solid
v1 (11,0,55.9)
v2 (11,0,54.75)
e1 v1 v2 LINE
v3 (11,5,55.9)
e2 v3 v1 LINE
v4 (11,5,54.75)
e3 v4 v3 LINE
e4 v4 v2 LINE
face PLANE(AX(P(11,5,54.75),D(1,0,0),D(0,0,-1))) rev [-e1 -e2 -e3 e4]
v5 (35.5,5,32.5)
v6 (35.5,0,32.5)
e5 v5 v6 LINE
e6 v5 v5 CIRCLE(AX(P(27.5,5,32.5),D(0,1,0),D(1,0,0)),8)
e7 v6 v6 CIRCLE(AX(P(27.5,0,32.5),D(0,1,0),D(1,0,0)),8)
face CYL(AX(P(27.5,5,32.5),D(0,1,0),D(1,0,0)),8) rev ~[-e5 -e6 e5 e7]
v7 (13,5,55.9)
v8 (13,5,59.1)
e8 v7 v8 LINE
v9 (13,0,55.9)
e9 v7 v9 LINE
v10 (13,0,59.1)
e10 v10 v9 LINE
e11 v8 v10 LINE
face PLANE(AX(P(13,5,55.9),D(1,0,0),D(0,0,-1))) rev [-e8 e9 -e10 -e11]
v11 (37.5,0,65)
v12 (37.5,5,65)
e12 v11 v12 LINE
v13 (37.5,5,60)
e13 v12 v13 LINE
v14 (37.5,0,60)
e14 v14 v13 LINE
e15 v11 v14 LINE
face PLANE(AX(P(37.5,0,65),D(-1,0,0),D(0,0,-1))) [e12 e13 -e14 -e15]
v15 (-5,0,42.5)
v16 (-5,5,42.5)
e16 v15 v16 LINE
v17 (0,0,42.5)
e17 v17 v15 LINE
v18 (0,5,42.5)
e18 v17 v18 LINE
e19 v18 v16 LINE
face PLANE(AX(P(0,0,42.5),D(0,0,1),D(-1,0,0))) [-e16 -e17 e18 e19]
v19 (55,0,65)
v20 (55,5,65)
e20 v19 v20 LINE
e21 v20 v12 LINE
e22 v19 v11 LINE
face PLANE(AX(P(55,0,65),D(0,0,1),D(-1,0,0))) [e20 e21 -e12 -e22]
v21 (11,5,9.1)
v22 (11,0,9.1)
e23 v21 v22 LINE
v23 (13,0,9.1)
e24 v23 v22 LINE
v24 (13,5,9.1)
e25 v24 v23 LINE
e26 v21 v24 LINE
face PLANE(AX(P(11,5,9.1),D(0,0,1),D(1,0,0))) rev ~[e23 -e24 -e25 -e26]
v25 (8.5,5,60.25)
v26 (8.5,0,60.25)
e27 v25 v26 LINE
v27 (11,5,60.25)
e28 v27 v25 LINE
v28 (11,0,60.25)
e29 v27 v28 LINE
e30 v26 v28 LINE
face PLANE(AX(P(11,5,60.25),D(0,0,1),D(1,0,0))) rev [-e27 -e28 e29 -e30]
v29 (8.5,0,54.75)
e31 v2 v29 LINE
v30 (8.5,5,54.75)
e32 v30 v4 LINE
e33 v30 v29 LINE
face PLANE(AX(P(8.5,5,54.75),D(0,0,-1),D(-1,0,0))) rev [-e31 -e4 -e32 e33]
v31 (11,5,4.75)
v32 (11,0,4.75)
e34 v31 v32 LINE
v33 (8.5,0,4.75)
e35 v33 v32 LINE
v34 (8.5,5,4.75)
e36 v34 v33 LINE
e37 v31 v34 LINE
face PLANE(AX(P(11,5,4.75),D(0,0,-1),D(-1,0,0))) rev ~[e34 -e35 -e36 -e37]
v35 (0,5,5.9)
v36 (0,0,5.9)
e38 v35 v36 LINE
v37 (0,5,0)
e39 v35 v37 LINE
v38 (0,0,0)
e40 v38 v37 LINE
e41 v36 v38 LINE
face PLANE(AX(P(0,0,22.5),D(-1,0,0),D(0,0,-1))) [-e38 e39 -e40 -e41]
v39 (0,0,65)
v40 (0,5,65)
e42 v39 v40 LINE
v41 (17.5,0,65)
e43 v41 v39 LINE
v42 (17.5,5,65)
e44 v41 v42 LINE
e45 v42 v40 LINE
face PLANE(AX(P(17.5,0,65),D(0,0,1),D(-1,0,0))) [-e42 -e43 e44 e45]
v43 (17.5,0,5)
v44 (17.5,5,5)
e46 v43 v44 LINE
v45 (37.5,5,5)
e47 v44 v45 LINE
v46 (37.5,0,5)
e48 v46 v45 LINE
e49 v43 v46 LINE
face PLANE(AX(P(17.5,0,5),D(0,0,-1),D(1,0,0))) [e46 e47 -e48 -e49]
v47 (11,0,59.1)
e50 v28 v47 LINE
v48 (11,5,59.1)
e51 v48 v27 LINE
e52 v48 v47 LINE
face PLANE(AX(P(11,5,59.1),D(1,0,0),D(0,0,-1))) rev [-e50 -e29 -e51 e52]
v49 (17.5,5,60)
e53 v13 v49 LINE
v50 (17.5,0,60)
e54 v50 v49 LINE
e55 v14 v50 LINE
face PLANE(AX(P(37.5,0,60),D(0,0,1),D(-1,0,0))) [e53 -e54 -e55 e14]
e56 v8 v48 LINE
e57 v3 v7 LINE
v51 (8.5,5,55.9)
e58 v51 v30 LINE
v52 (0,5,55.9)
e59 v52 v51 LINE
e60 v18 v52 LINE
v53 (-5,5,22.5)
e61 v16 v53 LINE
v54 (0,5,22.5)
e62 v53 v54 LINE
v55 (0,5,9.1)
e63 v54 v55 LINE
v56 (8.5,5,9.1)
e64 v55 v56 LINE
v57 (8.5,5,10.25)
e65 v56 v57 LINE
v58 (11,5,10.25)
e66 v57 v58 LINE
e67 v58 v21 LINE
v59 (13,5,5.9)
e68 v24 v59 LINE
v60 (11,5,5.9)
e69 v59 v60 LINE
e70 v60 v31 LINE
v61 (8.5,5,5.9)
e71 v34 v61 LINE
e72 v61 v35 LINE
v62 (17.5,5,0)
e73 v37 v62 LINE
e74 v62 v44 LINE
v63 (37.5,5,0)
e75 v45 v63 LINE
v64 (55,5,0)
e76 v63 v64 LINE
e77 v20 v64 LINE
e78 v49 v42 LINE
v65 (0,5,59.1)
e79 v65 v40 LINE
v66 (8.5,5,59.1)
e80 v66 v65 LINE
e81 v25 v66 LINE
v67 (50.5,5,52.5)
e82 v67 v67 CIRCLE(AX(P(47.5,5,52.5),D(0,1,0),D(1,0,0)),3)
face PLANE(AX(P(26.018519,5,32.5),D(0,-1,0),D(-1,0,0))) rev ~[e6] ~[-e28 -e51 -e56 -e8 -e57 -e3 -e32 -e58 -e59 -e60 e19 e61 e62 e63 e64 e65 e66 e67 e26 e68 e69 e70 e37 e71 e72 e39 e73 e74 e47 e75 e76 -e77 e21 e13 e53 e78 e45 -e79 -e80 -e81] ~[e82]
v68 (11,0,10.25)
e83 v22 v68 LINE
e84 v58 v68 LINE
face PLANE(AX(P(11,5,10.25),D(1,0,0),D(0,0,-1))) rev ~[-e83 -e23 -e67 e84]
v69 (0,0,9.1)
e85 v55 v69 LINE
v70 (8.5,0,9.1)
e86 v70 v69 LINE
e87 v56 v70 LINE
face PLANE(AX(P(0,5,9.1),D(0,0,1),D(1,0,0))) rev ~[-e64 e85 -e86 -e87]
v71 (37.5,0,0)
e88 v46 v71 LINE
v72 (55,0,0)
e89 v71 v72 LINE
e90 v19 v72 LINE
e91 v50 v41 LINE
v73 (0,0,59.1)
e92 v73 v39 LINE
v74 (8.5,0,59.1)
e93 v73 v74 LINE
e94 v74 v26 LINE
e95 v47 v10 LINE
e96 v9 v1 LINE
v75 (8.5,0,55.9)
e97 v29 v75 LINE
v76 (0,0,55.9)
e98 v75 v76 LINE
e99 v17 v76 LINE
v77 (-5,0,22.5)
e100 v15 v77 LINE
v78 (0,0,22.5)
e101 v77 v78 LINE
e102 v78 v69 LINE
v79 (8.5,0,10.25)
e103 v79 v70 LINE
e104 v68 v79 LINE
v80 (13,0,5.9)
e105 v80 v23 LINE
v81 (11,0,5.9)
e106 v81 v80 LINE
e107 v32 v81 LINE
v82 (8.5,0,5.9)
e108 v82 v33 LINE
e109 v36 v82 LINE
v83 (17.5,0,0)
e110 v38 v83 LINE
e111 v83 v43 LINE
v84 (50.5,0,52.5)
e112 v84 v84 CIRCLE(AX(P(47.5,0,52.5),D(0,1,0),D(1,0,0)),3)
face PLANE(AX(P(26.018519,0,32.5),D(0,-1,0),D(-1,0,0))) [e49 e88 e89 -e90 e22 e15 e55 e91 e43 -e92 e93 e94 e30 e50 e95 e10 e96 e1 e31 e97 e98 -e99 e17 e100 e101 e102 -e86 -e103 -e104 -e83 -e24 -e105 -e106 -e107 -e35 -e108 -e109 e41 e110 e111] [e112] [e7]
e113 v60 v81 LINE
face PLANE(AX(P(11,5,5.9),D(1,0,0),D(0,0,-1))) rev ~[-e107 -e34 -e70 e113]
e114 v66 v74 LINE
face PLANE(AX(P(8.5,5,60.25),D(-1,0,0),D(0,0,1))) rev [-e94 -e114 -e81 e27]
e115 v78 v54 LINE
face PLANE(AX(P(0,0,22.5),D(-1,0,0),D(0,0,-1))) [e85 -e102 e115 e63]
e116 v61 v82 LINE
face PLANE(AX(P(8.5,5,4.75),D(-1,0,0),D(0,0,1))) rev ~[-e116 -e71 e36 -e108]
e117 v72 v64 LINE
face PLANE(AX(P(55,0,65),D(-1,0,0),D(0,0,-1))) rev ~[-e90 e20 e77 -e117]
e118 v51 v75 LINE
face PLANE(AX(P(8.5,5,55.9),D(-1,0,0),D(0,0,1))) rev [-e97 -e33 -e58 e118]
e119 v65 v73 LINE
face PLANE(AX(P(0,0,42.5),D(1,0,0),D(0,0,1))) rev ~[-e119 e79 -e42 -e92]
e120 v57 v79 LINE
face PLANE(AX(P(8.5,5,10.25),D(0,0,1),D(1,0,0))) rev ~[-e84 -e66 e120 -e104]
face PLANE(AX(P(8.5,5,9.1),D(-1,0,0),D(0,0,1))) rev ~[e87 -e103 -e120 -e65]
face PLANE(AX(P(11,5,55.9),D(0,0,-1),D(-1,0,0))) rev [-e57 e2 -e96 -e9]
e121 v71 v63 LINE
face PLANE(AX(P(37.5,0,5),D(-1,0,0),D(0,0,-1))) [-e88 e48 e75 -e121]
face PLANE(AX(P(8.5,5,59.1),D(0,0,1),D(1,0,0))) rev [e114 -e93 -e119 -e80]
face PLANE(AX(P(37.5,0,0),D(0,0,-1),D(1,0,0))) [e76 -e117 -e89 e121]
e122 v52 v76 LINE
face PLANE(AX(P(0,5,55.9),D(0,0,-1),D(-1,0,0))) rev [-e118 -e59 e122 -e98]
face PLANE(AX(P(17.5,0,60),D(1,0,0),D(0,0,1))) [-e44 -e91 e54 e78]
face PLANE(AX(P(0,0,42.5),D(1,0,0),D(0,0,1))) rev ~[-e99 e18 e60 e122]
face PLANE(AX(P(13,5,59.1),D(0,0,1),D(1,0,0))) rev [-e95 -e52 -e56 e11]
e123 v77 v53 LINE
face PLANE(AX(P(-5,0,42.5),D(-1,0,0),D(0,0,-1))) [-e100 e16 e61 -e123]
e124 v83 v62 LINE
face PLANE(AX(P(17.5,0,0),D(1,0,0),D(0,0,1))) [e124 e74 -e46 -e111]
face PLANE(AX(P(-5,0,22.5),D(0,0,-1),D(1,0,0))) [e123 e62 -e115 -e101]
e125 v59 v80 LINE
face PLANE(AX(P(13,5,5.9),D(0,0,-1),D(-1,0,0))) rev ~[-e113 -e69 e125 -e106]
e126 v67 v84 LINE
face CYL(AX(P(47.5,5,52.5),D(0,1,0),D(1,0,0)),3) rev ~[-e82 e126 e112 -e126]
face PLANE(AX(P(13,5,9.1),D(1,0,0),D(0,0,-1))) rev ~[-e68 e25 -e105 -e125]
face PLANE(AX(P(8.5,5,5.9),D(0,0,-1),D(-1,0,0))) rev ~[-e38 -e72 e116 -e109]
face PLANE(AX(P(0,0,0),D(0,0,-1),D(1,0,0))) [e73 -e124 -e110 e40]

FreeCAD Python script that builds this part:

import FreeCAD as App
import Part
import Sketcher

V = App.Vector


def add_polygon(sketch, points):
    """Adds a closed chain of lines whose ends are joined by coincident constraints."""
    first, n = sketch.GeometryCount, len(points)
    for a, b in zip(points, points[1:] + points[:1]):
        sketch.addGeometry(Part.LineSegment(App.Vector(*a, 0), App.Vector(*b, 0)), False)
    for i in range(n):
        sketch.addConstraint(Sketcher.Constraint("Coincident", first + i, 2, first + (i + 1) % n, 1))

doc = App.newDocument("Part")
params = doc.addObject("Spreadsheet::Sheet", "Params")
for row, (alias, value) in enumerate([
    ("sketch1_width", "20 mm"),
    ("sketch1_width2", "5 mm"),
    ("sketch1_height", "65 mm"),
    ("sketch1_width3", "17.5 mm"),
    ("pad1_length", "5 mm"),
    ("sketch2_diameter", "16 mm"),
    ("pocket1_length", "10 mm"),
    ("sketch3_width", "2 mm"),
    ("sketch3_width2", "2.5 mm"),
    ("sketch3_width3", "8.5 mm"),
    ("sketch3_height", "3.2 mm"),
    ("sketch3_height2", "1.15 mm"),
    ("pocket2_length", "10 mm"),
    ("sketch4_diameter", "6 mm"),
    ("pocket3_length", "10 mm"),
], start=1):
    params.set(f"A{row}", alias)
    params.set(f"B{row}", "=" + value)
    params.setAlias(f"B{row}", alias)

body = doc.addObject("PartDesign::Body", "Body")

# Sketch on XZ plane
sketch1 = doc.addObject("Sketcher::SketchObject", "Sketch")
body.addObject(sketch1)
sketch1.AttachmentSupport = (doc.XZ_Plane, [""])
sketch1.MapMode = "FlatFace"
add_polygon(sketch1, [(38, 5), (18, 5), (18, 0), (0, 0), (0, 22), (-5, 22), (-5, 42), (0, 42), (0, 65), (18, 65), (18, 60), (38, 60), (38, 65), (55, 65), (55, 0), (38, 0)])  # lines 0-15
sketch1.addConstraint([
    Sketcher.Constraint("Horizontal", 0),
    Sketcher.Constraint("Vertical", 1),
    Sketcher.Constraint("Horizontal", 2),
    Sketcher.Constraint("Vertical", 3),
    Sketcher.Constraint("Horizontal", 4),
    Sketcher.Constraint("Vertical", 5),
    Sketcher.Constraint("Horizontal", 6),
    Sketcher.Constraint("Vertical", 7),
    Sketcher.Constraint("Horizontal", 8),
    Sketcher.Constraint("Vertical", 9),
    Sketcher.Constraint("Horizontal", 10),
    Sketcher.Constraint("Vertical", 11),
    Sketcher.Constraint("Horizontal", 12),
    Sketcher.Constraint("Vertical", 13),
    Sketcher.Constraint("Horizontal", 14),
    Sketcher.Constraint("Vertical", 15),
    Sketcher.Constraint("Coincident", 2, 2, -1, 1),
    Sketcher.Constraint("PointOnObject", 6, 2, -2),
    Sketcher.Constraint("PointOnObject", 13, 2, -1),
    Sketcher.Constraint("Horizontal", 8, 2, 11, 2),
    Sketcher.Constraint("Vertical", 1, 2, 8, 2),
    Sketcher.Constraint("Vertical", 11, 2, 14, 2),
    Sketcher.Constraint("Equal", 8, 12),
    Sketcher.Constraint("Equal", 6, 1),
    Sketcher.Constraint("Equal", 10, 5),
    Sketcher.Constraint("Equal", 3, 7),
    Sketcher.Constraint("Equal", 1, 9),
    Sketcher.Constraint("DistanceX", 0, 2, 0, 1, 20.0),
    Sketcher.Constraint("DistanceX", 4, 2, 4, 1, 5.0),
    Sketcher.Constraint("DistanceY", 13, 2, 13, 1, 65.0),
    Sketcher.Constraint("DistanceX", 2, 2, 2, 1, 17.5),
])
sketch1.setExpression("Constraints[43]", "Params.sketch1_width")
sketch1.setExpression("Constraints[44]", "Params.sketch1_width2")
sketch1.setExpression("Constraints[45]", "Params.sketch1_height")
sketch1.setExpression("Constraints[46]", "Params.sketch1_width3")
pad1 = doc.addObject("PartDesign::Pad", "Pad")
body.addObject(pad1)
pad1.Profile = sketch1
pad1.setExpression("Length", "Params.pad1_length")
pad1.Reversed = True

# Sketch on XZ plane
sketch2 = doc.addObject("Sketcher::SketchObject", "Sketch001")
body.addObject(sketch2)
sketch2.AttachmentSupport = (doc.XZ_Plane, [""])
sketch2.MapMode = "FlatFace"
sketch2.AttachmentOffset = App.Placement(V(0, 0, -5), App.Rotation())
sketch2.addGeometry(Part.Circle(V(28, 32, 0), V(0, 0, 1), 8), False)
sketch2.addConstraint([
    Sketcher.Constraint("Diameter", 0, 16.0),
    Sketcher.Constraint("DistanceX", -1, 1, 0, 3, 27.5),
    Sketcher.Constraint("DistanceY", -1, 1, 0, 3, 32.5),
])
sketch2.setExpression("Constraints[0]", "Params.sketch2_diameter")
pocket1 = doc.addObject("PartDesign::Pocket", "Pocket")
body.addObject(pocket1)
pocket1.Profile = sketch2
pocket1.setExpression("Length", "Params.pocket1_length")
pocket1.Reversed = True

# Sketch on XZ plane
sketch3 = doc.addObject("Sketcher::SketchObject", "Sketch002")
body.addObject(sketch3)
sketch3.AttachmentSupport = (doc.XZ_Plane, [""])
sketch3.MapMode = "FlatFace"
sketch3.AttachmentOffset = App.Placement(V(0, 0, -5), App.Rotation())
add_polygon(sketch3, [(13, 5.9), (11, 5.9), (11, 4.8), (8.5, 4.8), (8.5, 5.9), (0, 5.9), (0, 9.1), (8.5, 9.1), (8.5, 10.2), (11, 10.2), (11, 9.1), (13, 9.1)])  # lines 0-11
sketch3.addConstraint([
    Sketcher.Constraint("Horizontal", 0),
    Sketcher.Constraint("Vertical", 1),
    Sketcher.Constraint("Horizontal", 2),
    Sketcher.Constraint("Vertical", 3),
    Sketcher.Constraint("Horizontal", 4),
    Sketcher.Constraint("Vertical", 5),
    Sketcher.Constraint("Horizontal", 6),
    Sketcher.Constraint("Vertical", 7),
    Sketcher.Constraint("Horizontal", 8),
    Sketcher.Constraint("Vertical", 9),
    Sketcher.Constraint("Horizontal", 10),
    Sketcher.Constraint("Vertical", 11),
    Sketcher.Constraint("PointOnObject", 4, 2, -2),
    Sketcher.Constraint("Horizontal", 0, 2, 3, 2),
    Sketcher.Constraint("Horizontal", 6, 2, 9, 2),
    Sketcher.Constraint("Vertical", 3, 2, 6, 2),
    Sketcher.Constraint("Vertical", 1, 2, 8, 2),
    Sketcher.Constraint("Equal", 3, 7),
    Sketcher.Constraint("DistanceX", 0, 2, 0, 1, 2.0),
    Sketcher.Constraint("DistanceX", 2, 2, 2, 1, 2.5),
    Sketcher.Constraint("DistanceX", 4, 2, 4, 1, 8.5),
    Sketcher.Constraint("DistanceY", 5, 1, 5, 2, 3.2),
    Sketcher.Constraint("DistanceY", 1, 2, 1, 1, 1.15),
    Sketcher.Constraint("DistanceY", -1, 1, 0, 2, 5.9),
])
sketch3.setExpression("Constraints[30]", "Params.sketch3_width")
sketch3.setExpression("Constraints[31]", "Params.sketch3_width2")
sketch3.setExpression("Constraints[32]", "Params.sketch3_width3")
sketch3.setExpression("Constraints[33]", "Params.sketch3_height")
sketch3.setExpression("Constraints[34]", "Params.sketch3_height2")
pocket2 = doc.addObject("PartDesign::Pocket", "Pocket001")
body.addObject(pocket2)
pocket2.Profile = sketch3
pocket2.setExpression("Length", "Params.pocket2_length")
pocket2.Reversed = True
doc.recompute()

datumplane = doc.addObject("PartDesign::Plane", "DatumPlane")
body.addObject(datumplane)
datumplane.AttachmentSupport = (doc.XY_Plane, [""])
datumplane.MapMode = "FlatFace"
datumplane.AttachmentOffset = App.Placement(V(0, 0, 32.5), App.Rotation())
mirrored = doc.addObject("PartDesign::Mirrored", "Mirrored")
body.addObject(mirrored)
mirrored.Originals = [pocket2]
mirrored.MirrorPlane = (datumplane, [""])
body.Tip = mirrored

# Sketch on XZ plane
sketch4 = doc.addObject("Sketcher::SketchObject", "Sketch003")
body.addObject(sketch4)
sketch4.AttachmentSupport = (doc.XZ_Plane, [""])
sketch4.MapMode = "FlatFace"
sketch4.AttachmentOffset = App.Placement(V(0, 0, -5), App.Rotation())
sketch4.addGeometry(Part.Circle(V(47.5, 52.5, 0), V(0, 0, 1), 3), False)
sketch4.addConstraint([
    Sketcher.Constraint("Diameter", 0, 6.0),
    Sketcher.Constraint("DistanceX", -1, 1, 0, 3, 47.5),
    Sketcher.Constraint("DistanceY", -1, 1, 0, 3, 52.5),
])
sketch4.setExpression("Constraints[0]", "Params.sketch4_diameter")
pocket3 = doc.addObject("PartDesign::Pocket", "Pocket002")
body.addObject(pocket3)
pocket3.Profile = sketch4
pocket3.setExpression("Length", "Params.pocket3_length")
pocket3.Reversed = True

doc.recompute()
